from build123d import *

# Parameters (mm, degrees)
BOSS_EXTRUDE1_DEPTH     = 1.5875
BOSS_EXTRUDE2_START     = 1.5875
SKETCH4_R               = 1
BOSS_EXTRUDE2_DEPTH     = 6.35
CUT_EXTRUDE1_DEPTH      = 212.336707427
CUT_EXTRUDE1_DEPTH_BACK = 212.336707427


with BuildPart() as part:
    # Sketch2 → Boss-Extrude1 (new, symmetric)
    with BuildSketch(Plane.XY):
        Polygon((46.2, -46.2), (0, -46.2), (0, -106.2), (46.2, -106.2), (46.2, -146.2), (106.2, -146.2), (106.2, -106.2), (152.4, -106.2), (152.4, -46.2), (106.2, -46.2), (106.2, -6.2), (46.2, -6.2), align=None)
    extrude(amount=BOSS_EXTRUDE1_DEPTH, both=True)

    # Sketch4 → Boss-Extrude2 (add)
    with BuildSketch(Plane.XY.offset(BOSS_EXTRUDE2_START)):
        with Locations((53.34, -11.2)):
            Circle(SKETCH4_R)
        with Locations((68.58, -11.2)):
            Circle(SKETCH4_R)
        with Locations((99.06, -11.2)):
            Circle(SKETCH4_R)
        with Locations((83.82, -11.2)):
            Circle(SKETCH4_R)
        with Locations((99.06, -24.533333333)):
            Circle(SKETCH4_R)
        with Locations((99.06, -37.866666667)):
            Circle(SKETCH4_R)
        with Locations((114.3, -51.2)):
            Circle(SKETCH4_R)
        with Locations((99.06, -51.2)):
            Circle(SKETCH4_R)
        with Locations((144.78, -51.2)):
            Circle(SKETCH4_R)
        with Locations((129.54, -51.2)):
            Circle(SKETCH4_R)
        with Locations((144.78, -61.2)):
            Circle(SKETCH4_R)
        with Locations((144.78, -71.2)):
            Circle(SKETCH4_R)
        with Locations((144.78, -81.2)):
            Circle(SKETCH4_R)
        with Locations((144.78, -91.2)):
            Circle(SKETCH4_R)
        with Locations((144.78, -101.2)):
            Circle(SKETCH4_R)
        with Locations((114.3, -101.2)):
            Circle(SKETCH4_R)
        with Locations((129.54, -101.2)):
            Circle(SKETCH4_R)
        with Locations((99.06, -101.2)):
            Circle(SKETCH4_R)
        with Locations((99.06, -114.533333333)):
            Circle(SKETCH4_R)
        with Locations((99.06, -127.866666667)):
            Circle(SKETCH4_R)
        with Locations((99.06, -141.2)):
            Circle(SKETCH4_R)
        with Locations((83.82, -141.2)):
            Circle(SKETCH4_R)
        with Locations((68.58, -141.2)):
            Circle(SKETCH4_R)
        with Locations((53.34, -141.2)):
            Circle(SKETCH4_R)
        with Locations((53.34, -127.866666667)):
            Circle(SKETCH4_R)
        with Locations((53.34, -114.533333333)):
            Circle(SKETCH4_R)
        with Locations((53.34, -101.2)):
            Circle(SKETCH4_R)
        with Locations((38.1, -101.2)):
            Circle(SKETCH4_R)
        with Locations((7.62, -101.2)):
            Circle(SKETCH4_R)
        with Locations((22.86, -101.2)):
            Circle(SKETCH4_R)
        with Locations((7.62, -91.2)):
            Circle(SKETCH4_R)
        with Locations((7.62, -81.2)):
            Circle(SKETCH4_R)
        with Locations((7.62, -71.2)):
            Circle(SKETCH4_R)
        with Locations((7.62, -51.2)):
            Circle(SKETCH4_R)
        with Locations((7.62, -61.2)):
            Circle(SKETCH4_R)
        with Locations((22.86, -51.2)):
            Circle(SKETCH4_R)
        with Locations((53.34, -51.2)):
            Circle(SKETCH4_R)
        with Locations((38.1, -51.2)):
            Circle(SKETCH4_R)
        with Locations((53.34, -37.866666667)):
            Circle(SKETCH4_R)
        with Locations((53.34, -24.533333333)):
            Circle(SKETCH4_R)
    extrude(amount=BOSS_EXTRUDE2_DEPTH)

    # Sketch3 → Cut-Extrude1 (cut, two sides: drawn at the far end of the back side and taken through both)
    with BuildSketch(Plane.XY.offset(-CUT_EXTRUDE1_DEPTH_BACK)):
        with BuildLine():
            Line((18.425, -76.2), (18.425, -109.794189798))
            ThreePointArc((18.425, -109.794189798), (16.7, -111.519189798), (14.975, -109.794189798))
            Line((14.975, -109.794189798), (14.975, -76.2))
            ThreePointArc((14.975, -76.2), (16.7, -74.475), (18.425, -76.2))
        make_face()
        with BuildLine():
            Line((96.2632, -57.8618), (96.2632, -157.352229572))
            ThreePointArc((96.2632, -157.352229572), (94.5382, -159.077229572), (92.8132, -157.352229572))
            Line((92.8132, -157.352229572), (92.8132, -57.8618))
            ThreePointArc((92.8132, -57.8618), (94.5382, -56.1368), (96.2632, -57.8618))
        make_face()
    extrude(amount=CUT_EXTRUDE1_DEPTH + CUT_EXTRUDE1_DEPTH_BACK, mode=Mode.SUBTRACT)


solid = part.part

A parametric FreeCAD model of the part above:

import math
import FreeCAD as App
import Part
import Sketcher

V = App.Vector


def add_polygon(sketch, points):
    """Adds a closed chain of lines whose ends are joined by coincident constraints."""
    first, n = sketch.GeometryCount, len(points)
    for a, b in zip(points, points[1:] + points[:1]):
        sketch.addGeometry(Part.LineSegment(App.Vector(*a, 0), App.Vector(*b, 0)), False)
    for i in range(n):
        sketch.addConstraint(Sketcher.Constraint("Coincident", first + i, 2, first + (i + 1) % n, 1))

doc = App.newDocument("Part")
body = doc.addObject("PartDesign::Body", "Body")

# Sketch on XY plane
sketch1 = doc.addObject("Sketcher::SketchObject", "Sketch")
body.addObject(sketch1)
sketch1.AttachmentSupport = (doc.XY_Plane, [""])
sketch1.MapMode = "FlatFace"
add_polygon(sketch1, [(46, -46), (0, -46), (0, -106), (46, -106), (46, -146), (106, -146), (106, -106), (152, -106), (152, -46), (106, -46), (106, -6), (46, -6)])  # lines 0-11
sketch1.addConstraint(Sketcher.Constraint("Horizontal", 0))
sketch1.addConstraint(Sketcher.Constraint("Vertical", 1))
sketch1.addConstraint(Sketcher.Constraint("Horizontal", 2))
sketch1.addConstraint(Sketcher.Constraint("Vertical", 3))
sketch1.addConstraint(Sketcher.Constraint("Horizontal", 4))
sketch1.addConstraint(Sketcher.Constraint("Vertical", 5))
sketch1.addConstraint(Sketcher.Constraint("Horizontal", 6))
sketch1.addConstraint(Sketcher.Constraint("Vertical", 7))
sketch1.addConstraint(Sketcher.Constraint("Horizontal", 8))
sketch1.addConstraint(Sketcher.Constraint("Vertical", 9))
sketch1.addConstraint(Sketcher.Constraint("Horizontal", 10))
sketch1.addConstraint(Sketcher.Constraint("Vertical", 11))
sketch1.addConstraint(Sketcher.Constraint("PointOnObject", 0, 2, -2))
sketch1.addConstraint(Sketcher.Constraint("Horizontal", 2, 2, 5, 2))
sketch1.addConstraint(Sketcher.Constraint("Horizontal", 0, 2, 7, 2))
sketch1.addConstraint(Sketcher.Constraint("Vertical", 5, 2, 8, 2))
sketch1.addConstraint(Sketcher.Constraint("Vertical", 3, 2, 10, 2))
sketch1.addConstraint(Sketcher.Constraint("Equal", 2, 6))
sketch1.addConstraint(Sketcher.Constraint("Equal", 10, 1))
sketch1.addConstraint(Sketcher.Constraint("Equal", 5, 9))
sketch1.addConstraint(Sketcher.Constraint("DistanceX", 4, 1, 4, 2, 60.0))
sketch1.addConstraint(Sketcher.Constraint("DistanceY", 3, 2, 3, 1, 40.0))
sketch1.addConstraint(Sketcher.Constraint("DistanceX", 0, 2, 0, 1, 46.2))
sketch1.addConstraint(Sketcher.Constraint("DistanceY", 0, 2, -1, 1, 46.2))
pad1 = doc.addObject("PartDesign::Pad", "Pad")
body.addObject(pad1)
pad1.Profile = sketch1
pad1.Length = 3.175
pad1.Midplane = True

# Sketch on XY plane
sketch2 = doc.addObject("Sketcher::SketchObject", "Sketch001")
body.addObject(sketch2)
sketch2.AttachmentSupport = (doc.XY_Plane, [""])
sketch2.MapMode = "FlatFace"
sketch2.AttachmentOffset = App.Placement(V(0, 0, 1.5875), App.Rotation())
sketch2.addGeometry(Part.Circle(V(53.3, -11.2, 0), V(0, 0, 1), 1), False)
sketch2.addGeometry(Part.Circle(V(68.6, -11.2, 0), V(0, 0, 1), 1), False)
sketch2.addGeometry(Part.Circle(V(99.1, -11.2, 0), V(0, 0, 1), 1), False)
sketch2.addGeometry(Part.Circle(V(83.8, -11.2, 0), V(0, 0, 1), 1), False)
sketch2.addGeometry(Part.Circle(V(99.1, -24.5, 0), V(0, 0, 1), 1), False)
sketch2.addGeometry(Part.Circle(V(99.1, -37.9, 0), V(0, 0, 1), 1), False)
sketch2.addGeometry(Part.Circle(V(114.3, -51.2, 0), V(0, 0, 1), 1), False)
sketch2.addGeometry(Part.Circle(V(99.1, -51.2, 0), V(0, 0, 1), 1), False)
sketch2.addGeometry(Part.Circle(V(144.8, -51.2, 0), V(0, 0, 1), 1), False)
sketch2.addGeometry(Part.Circle(V(129.5, -51.2, 0), V(0, 0, 1), 1), False)
sketch2.addGeometry(Part.Circle(V(144.8, -61.2, 0), V(0, 0, 1), 1), False)
sketch2.addGeometry(Part.Circle(V(144.8, -71.2, 0), V(0, 0, 1), 1), False)
sketch2.addGeometry(Part.Circle(V(144.8, -81.2, 0), V(0, 0, 1), 1), False)
sketch2.addGeometry(Part.Circle(V(144.8, -91.2, 0), V(0, 0, 1), 1), False)
sketch2.addGeometry(Part.Circle(V(144.8, -101.2, 0), V(0, 0, 1), 1), False)
sketch2.addGeometry(Part.Circle(V(114.3, -101.2, 0), V(0, 0, 1), 1), False)
sketch2.addGeometry(Part.Circle(V(129.5, -101.2, 0), V(0, 0, 1), 1), False)
sketch2.addGeometry(Part.Circle(V(99.1, -101.2, 0), V(0, 0, 1), 1), False)
sketch2.addGeometry(Part.Circle(V(99.1, -114.5, 0), V(0, 0, 1), 1), False)
sketch2.addGeometry(Part.Circle(V(99.1, -127.9, 0), V(0, 0, 1), 1), False)
sketch2.addGeometry(Part.Circle(V(99.1, -141.2, 0), V(0, 0, 1), 1), False)
sketch2.addGeometry(Part.Circle(V(83.8, -141.2, 0), V(0, 0, 1), 1), False)
sketch2.addGeometry(Part.Circle(V(68.6, -141.2, 0), V(0, 0, 1), 1), False)
sketch2.addGeometry(Part.Circle(V(53.3, -141.2, 0), V(0, 0, 1), 1), False)
sketch2.addGeometry(Part.Circle(V(53.3, -127.9, 0), V(0, 0, 1), 1), False)
sketch2.addGeometry(Part.Circle(V(53.3, -114.5, 0), V(0, 0, 1), 1), False)
sketch2.addGeometry(Part.Circle(V(53.3, -101.2, 0), V(0, 0, 1), 1), False)
sketch2.addGeometry(Part.Circle(V(38.1, -101.2, 0), V(0, 0, 1), 1), False)
sketch2.addGeometry(Part.Circle(V(7.6, -101.2, 0), V(0, 0, 1), 1), False)
sketch2.addGeometry(Part.Circle(V(22.9, -101.2, 0), V(0, 0, 1), 1), False)
sketch2.addGeometry(Part.Circle(V(7.6, -91.2, 0), V(0, 0, 1), 1), False)
sketch2.addGeometry(Part.Circle(V(7.6, -81.2, 0), V(0, 0, 1), 1), False)
sketch2.addGeometry(Part.Circle(V(7.6, -71.2, 0), V(0, 0, 1), 1), False)
sketch2.addGeometry(Part.Circle(V(7.6, -51.2, 0), V(0, 0, 1), 1), False)
sketch2.addGeometry(Part.Circle(V(7.6, -61.2, 0), V(0, 0, 1), 1), False)
sketch2.addGeometry(Part.Circle(V(22.9, -51.2, 0), V(0, 0, 1), 1), False)
sketch2.addGeometry(Part.Circle(V(53.3, -51.2, 0), V(0, 0, 1), 1), False)
sketch2.addGeometry(Part.Circle(V(38.1, -51.2, 0), V(0, 0, 1), 1), False)
sketch2.addGeometry(Part.Circle(V(53.3, -37.9, 0), V(0, 0, 1), 1), False)
sketch2.addGeometry(Part.Circle(V(53.3, -24.5, 0), V(0, 0, 1), 1), False)
sketch2.addConstraint(Sketcher.Constraint("Equal", 0, 1))
sketch2.addConstraint(Sketcher.Constraint("Equal", 1, 2))
sketch2.addConstraint(Sketcher.Constraint("Equal", 2, 3))
sketch2.addConstraint(Sketcher.Constraint("Equal", 3, 4))
sketch2.addConstraint(Sketcher.Constraint("Equal", 4, 5))
sketch2.addConstraint(Sketcher.Constraint("Equal", 5, 6))
sketch2.addConstraint(Sketcher.Constraint("Equal", 6, 7))
sketch2.addConstraint(Sketcher.Constraint("Equal", 7, 8))
sketch2.addConstraint(Sketcher.Constraint("Equal", 8, 9))
sketch2.addConstraint(Sketcher.Constraint("Equal", 9, 10))
sketch2.addConstraint(Sketcher.Constraint("Equal", 10, 11))
sketch2.addConstraint(Sketcher.Constraint("Equal", 11, 12))
sketch2.addConstraint(Sketcher.Constraint("Equal", 12, 13))
sketch2.addConstraint(Sketcher.Constraint("Equal", 13, 14))
sketch2.addConstraint(Sketcher.Constraint("Equal", 14, 15))
sketch2.addConstraint(Sketcher.Constraint("Equal", 15, 16))
sketch2.addConstraint(Sketcher.Constraint("Equal", 16, 17))
sketch2.addConstraint(Sketcher.Constraint("Equal", 17, 18))
sketch2.addConstraint(Sketcher.Constraint("Equal", 18, 19))
sketch2.addConstraint(Sketcher.Constraint("Equal", 19, 20))
sketch2.addConstraint(Sketcher.Constraint("Equal", 20, 21))
sketch2.addConstraint(Sketcher.Constraint("Equal", 21, 22))
sketch2.addConstraint(Sketcher.Constraint("Equal", 22, 23))
sketch2.addConstraint(Sketcher.Constraint("Equal", 23, 24))
sketch2.addConstraint(Sketcher.Constraint("Equal", 24, 25))
sketch2.addConstraint(Sketcher.Constraint("Equal", 25, 26))
sketch2.addConstraint(Sketcher.Constraint("Equal", 26, 27))
sketch2.addConstraint(Sketcher.Constraint("Equal", 27, 28))
sketch2.addConstraint(Sketcher.Constraint("Equal", 28, 29))
sketch2.addConstraint(Sketcher.Constraint("Equal", 29, 30))
sketch2.addConstraint(Sketcher.Constraint("Equal", 30, 31))
sketch2.addConstraint(Sketcher.Constraint("Equal", 31, 32))
sketch2.addConstraint(Sketcher.Constraint("Equal", 32, 33))
sketch2.addConstraint(Sketcher.Constraint("Equal", 33, 34))
sketch2.addConstraint(Sketcher.Constraint("Equal", 34, 35))
sketch2.addConstraint(Sketcher.Constraint("Equal", 35, 36))
sketch2.addConstraint(Sketcher.Constraint("Equal", 36, 37))
sketch2.addConstraint(Sketcher.Constraint("Equal", 37, 38))
sketch2.addConstraint(Sketcher.Constraint("Equal", 38, 39))
sketch2.addConstraint(Sketcher.Constraint("Horizontal", 0, 3, 1, 3))
sketch2.addConstraint(Sketcher.Constraint("Horizontal", 1, 3, 2, 3))
sketch2.addConstraint(Sketcher.Constraint("Horizontal", 2, 3, 3, 3))
sketch2.addConstraint(Sketcher.Constraint("Horizontal", 6, 3, 7, 3))
sketch2.addConstraint(Sketcher.Constraint("Horizontal", 7, 3, 8, 3))
sketch2.addConstraint(Sketcher.Constraint("Horizontal", 8, 3, 9, 3))
sketch2.addConstraint(Sketcher.Constraint("Horizontal", 14, 3, 15, 3))
sketch2.addConstraint(Sketcher.Constraint("Horizontal", 15, 3, 16, 3))
sketch2.addConstraint(Sketcher.Constraint("Horizontal", 16, 3, 17, 3))
sketch2.addConstraint(Sketcher.Constraint("Horizontal", 20, 3, 21, 3))
sketch2.addConstraint(Sketcher.Constraint("Horizontal", 21, 3, 22, 3))
sketch2.addConstraint(Sketcher.Constraint("Horizontal", 22, 3, 23, 3))
sketch2.addConstraint(Sketcher.Constraint("Horizontal", 19, 3, 24, 3))
sketch2.addConstraint(Sketcher.Constraint("Horizontal", 18, 3, 25, 3))
sketch2.addConstraint(Sketcher.Constraint("Horizontal", 17, 3, 26, 3))
sketch2.addConstraint(Sketcher.Constraint("Horizontal", 26, 3, 27, 3))
sketch2.addConstraint(Sketcher.Constraint("Horizontal", 27, 3, 28, 3))
sketch2.addConstraint(Sketcher.Constraint("Horizontal", 28, 3, 29, 3))
sketch2.addConstraint(Sketcher.Constraint("Horizontal", 13, 3, 30, 3))
sketch2.addConstraint(Sketcher.Constraint("Horizontal", 12, 3, 31, 3))
sketch2.addConstraint(Sketcher.Constraint("Horizontal", 11, 3, 32, 3))
sketch2.addConstraint(Sketcher.Constraint("Horizontal", 9, 3, 33, 3))
sketch2.addConstraint(Sketcher.Constraint("Horizontal", 10, 3, 34, 3))
sketch2.addConstraint(Sketcher.Constraint("Horizontal", 33, 3, 35, 3))
sketch2.addConstraint(Sketcher.Constraint("Horizontal", 35, 3, 36, 3))
sketch2.addConstraint(Sketcher.Constraint("Horizontal", 36, 3, 37, 3))
sketch2.addConstraint(Sketcher.Constraint("Horizontal", 5, 3, 38, 3))
sketch2.addConstraint(Sketcher.Constraint("Horizontal", 4, 3, 39, 3))
sketch2.addConstraint(Sketcher.Constraint("Vertical", 2, 3, 4, 3))
sketch2.addConstraint(Sketcher.Constraint("Vertical", 4, 3, 5, 3))
sketch2.addConstraint(Sketcher.Constraint("Vertical", 5, 3, 7, 3))
sketch2.addConstraint(Sketcher.Constraint("Vertical", 8, 3, 10, 3))
sketch2.addConstraint(Sketcher.Constraint("Vertical", 10, 3, 11, 3))
sketch2.addConstraint(Sketcher.Constraint("Vertical", 11, 3, 12, 3))
sketch2.addConstraint(Sketcher.Constraint("Vertical", 12, 3, 13, 3))
sketch2.addConstraint(Sketcher.Constraint("Vertical", 13, 3, 14, 3))
sketch2.addConstraint(Sketcher.Constraint("Vertical", 6, 3, 15, 3))
sketch2.addConstraint(Sketcher.Constraint("Vertical", 9, 3, 16, 3))
sketch2.addConstraint(Sketcher.Constraint("Vertical", 7, 3, 17, 3))
sketch2.addConstraint(Sketcher.Constraint("Vertical", 17, 3, 18, 3))
sketch2.addConstraint(Sketcher.Constraint("Vertical", 18, 3, 19, 3))
sketch2.addConstraint(Sketcher.Constraint("Vertical", 19, 3, 20, 3))
sketch2.addConstraint(Sketcher.Constraint("Vertical", 3, 3, 21, 3))
sketch2.addConstraint(Sketcher.Constraint("Vertical", 1, 3, 22, 3))
sketch2.addConstraint(Sketcher.Constraint("Vertical", 0, 3, 23, 3))
sketch2.addConstraint(Sketcher.Constraint("Vertical", 23, 3, 24, 3))
sketch2.addConstraint(Sketcher.Constraint("Vertical", 24, 3, 25, 3))
sketch2.addConstraint(Sketcher.Constraint("Vertical", 25, 3, 26, 3))
sketch2.addConstraint(Sketcher.Constraint("Vertical", 28, 3, 30, 3))
sketch2.addConstraint(Sketcher.Constraint("Vertical", 30, 3, 31, 3))
sketch2.addConstraint(Sketcher.Constraint("Vertical", 31, 3, 32, 3))
sketch2.addConstraint(Sketcher.Constraint("Vertical", 32, 3, 33, 3))
sketch2.addConstraint(Sketcher.Constraint("Vertical", 33, 3, 34, 3))
sketch2.addConstraint(Sketcher.Constraint("Vertical", 29, 3, 35, 3))
sketch2.addConstraint(Sketcher.Constraint("Vertical", 26, 3, 36, 3))
sketch2.addConstraint(Sketcher.Constraint("Vertical", 27, 3, 37, 3))
sketch2.addConstraint(Sketcher.Constraint("Vertical", 36, 3, 38, 3))
sketch2.addConstraint(Sketcher.Constraint("Vertical", 38, 3, 39, 3))
sketch2.addConstraint(Sketcher.Constraint("Diameter", 0, 2.0))
sketch2.addConstraint(Sketcher.Constraint("DistanceY", 6, 3, 2, 3, 40.0))
sketch2.addConstraint(Sketcher.Constraint("DistanceY", 10, 3, 8, 3, 10.0))
sketch2.addConstraint(Sketcher.Constraint("DistanceY", 11, 3, 10, 3, 10.0))
sketch2.addConstraint(Sketcher.Constraint("DistanceY", 12, 3, 11, 3, 10.0))
sketch2.addConstraint(Sketcher.Constraint("DistanceY", 13, 3, 12, 3, 10.0))
sketch2.addConstraint(Sketcher.Constraint("DistanceY", 14, 3, 13, 3, 10.0))
sketch2.addConstraint(Sketcher.Constraint("DistanceY", 20, 3, 17, 3, 40.0))
sketch2.addConstraint(Sketcher.Constraint("DistanceY", 0, 3, -1, 1, 11.2))
sketch2.addConstraint(Sketcher.Constraint("DistanceX", -1, 1, 6, 3, 114.3))
sketch2.addConstraint(Sketcher.Constraint("DistanceX", -1, 1, 27, 3, 38.1))
sketch2.addConstraint(Sketcher.Constraint("DistanceX", -1, 1, 0, 3, 53.34))
sketch2.addConstraint(Sketcher.Constraint("DistanceX", -1, 1, 1, 3, 68.58))
sketch2.addConstraint(Sketcher.Constraint("DistanceX", -1, 1, 2, 3, 99.06))
sketch2.addConstraint(Sketcher.Constraint("DistanceX", -1, 1, 3, 3, 83.82))
sketch2.addConstraint(Sketcher.Constraint("DistanceX", -1, 1, 8, 3, 144.78))
sketch2.addConstraint(Sketcher.Constraint("DistanceX", -1, 1, 9, 3, 129.54))
sketch2.addConstraint(Sketcher.Constraint("DistanceX", -1, 1, 28, 3, 7.62))
sketch2.addConstraint(Sketcher.Constraint("DistanceX", -1, 1, 29, 3, 22.86))
sketch2.addConstraint(Sketcher.Constraint("DistanceY", 4, 3, -1, 1, 24.533333))
sketch2.addConstraint(Sketcher.Constraint("DistanceY", 5, 3, -1, 1, 37.866667))
sketch2.addConstraint(Sketcher.Constraint("DistanceY", 18, 3, -1, 1, 114.533333))
sketch2.addConstraint(Sketcher.Constraint("DistanceY", 19, 3, -1, 1, 127.866667))
pad2 = doc.addObject("PartDesign::Pad", "Pad001")
body.addObject(pad2)
pad2.Profile = sketch2
pad2.Length = 6.35

# Sketch on XY plane
sketch3 = doc.addObject("Sketcher::SketchObject", "Sketch002")
body.addObject(sketch3)
sketch3.AttachmentSupport = (doc.XY_Plane, [""])
sketch3.MapMode = "FlatFace"
sketch3.addGeometry(Part.LineSegment(V(18.4, -109.8, 0), V(18.4, -76.2, 0)), False)
sketch3.addGeometry(Part.ArcOfCircle(Part.Circle(V(16.7, -76.2, 0), V(0, 0, 1), 1.7), math.radians(0), math.radians(180)), False)
sketch3.addGeometry(Part.LineSegment(V(15, -76.2, 0), V(15, -109.8, 0)), False)
sketch3.addGeometry(Part.ArcOfCircle(Part.Circle(V(16.7, -109.8, 0), V(0, 0, 1), 1.7), math.radians(180), math.radians(360)), False)
sketch3.addGeometry(Part.LineSegment(V(96.3, -157.4, 0), V(96.3, -57.9, 0)), False)
sketch3.addGeometry(Part.ArcOfCircle(Part.Circle(V(94.5, -57.9, 0), V(0, 0, 1), 1.7), math.radians(0), math.radians(180)), False)
sketch3.addGeometry(Part.LineSegment(V(92.8, -57.9, 0), V(92.8, -157.4, 0)), False)
sketch3.addGeometry(Part.ArcOfCircle(Part.Circle(V(94.5, -157.4, 0), V(0, 0, 1), 1.7), math.radians(180), math.radians(360)), False)
sketch3.addConstraint(Sketcher.Constraint("Tangent", 0, 2, 1, 1))
sketch3.addConstraint(Sketcher.Constraint("Tangent", 1, 2, 2, 1))
sketch3.addConstraint(Sketcher.Constraint("Tangent", 2, 2, 3, 1))
sketch3.addConstraint(Sketcher.Constraint("Tangent", 3, 2, 0, 1))
sketch3.addConstraint(Sketcher.Constraint("Tangent", 4, 2, 5, 1))
sketch3.addConstraint(Sketcher.Constraint("Tangent", 5, 2, 6, 1))
sketch3.addConstraint(Sketcher.Constraint("Tangent", 6, 2, 7, 1))
sketch3.addConstraint(Sketcher.Constraint("Tangent", 7, 2, 4, 1))
sketch3.addConstraint(Sketcher.Constraint("Vertical", 0))
sketch3.addConstraint(Sketcher.Constraint("Vertical", 2))
sketch3.addConstraint(Sketcher.Constraint("Vertical", 4))
sketch3.addConstraint(Sketcher.Constraint("Vertical", 6))
sketch3.addConstraint(Sketcher.Constraint("Equal", 3, 5))
sketch3.addConstraint(Sketcher.Constraint("Radius", 1, 1.725))
sketch3.addConstraint(Sketcher.Constraint("DistanceX", -1, 1, 1, 3, 16.7))
sketch3.addConstraint(Sketcher.Constraint("DistanceY", 1, 3, -1, 1, 76.2))
sketch3.addConstraint(Sketcher.Constraint("DistanceY", 0, 1, 0, 2, 33.59419))
sketch3.addConstraint(Sketcher.Constraint("DistanceY", 4, 1, 4, 2, 99.49043))
sketch3.addConstraint(Sketcher.Constraint("DistanceX", -1, 1, 5, 3, 94.5382))
sketch3.addConstraint(Sketcher.Constraint("DistanceY", 5, 3, -1, 1, 57.8618))
pocket1 = doc.addObject("PartDesign::Pocket", "Pocket")
body.addObject(pocket1)
pocket1.Profile = sketch3
pocket1.Type = "ThroughAll"
pocket1.Midplane = True

doc.recompute()
